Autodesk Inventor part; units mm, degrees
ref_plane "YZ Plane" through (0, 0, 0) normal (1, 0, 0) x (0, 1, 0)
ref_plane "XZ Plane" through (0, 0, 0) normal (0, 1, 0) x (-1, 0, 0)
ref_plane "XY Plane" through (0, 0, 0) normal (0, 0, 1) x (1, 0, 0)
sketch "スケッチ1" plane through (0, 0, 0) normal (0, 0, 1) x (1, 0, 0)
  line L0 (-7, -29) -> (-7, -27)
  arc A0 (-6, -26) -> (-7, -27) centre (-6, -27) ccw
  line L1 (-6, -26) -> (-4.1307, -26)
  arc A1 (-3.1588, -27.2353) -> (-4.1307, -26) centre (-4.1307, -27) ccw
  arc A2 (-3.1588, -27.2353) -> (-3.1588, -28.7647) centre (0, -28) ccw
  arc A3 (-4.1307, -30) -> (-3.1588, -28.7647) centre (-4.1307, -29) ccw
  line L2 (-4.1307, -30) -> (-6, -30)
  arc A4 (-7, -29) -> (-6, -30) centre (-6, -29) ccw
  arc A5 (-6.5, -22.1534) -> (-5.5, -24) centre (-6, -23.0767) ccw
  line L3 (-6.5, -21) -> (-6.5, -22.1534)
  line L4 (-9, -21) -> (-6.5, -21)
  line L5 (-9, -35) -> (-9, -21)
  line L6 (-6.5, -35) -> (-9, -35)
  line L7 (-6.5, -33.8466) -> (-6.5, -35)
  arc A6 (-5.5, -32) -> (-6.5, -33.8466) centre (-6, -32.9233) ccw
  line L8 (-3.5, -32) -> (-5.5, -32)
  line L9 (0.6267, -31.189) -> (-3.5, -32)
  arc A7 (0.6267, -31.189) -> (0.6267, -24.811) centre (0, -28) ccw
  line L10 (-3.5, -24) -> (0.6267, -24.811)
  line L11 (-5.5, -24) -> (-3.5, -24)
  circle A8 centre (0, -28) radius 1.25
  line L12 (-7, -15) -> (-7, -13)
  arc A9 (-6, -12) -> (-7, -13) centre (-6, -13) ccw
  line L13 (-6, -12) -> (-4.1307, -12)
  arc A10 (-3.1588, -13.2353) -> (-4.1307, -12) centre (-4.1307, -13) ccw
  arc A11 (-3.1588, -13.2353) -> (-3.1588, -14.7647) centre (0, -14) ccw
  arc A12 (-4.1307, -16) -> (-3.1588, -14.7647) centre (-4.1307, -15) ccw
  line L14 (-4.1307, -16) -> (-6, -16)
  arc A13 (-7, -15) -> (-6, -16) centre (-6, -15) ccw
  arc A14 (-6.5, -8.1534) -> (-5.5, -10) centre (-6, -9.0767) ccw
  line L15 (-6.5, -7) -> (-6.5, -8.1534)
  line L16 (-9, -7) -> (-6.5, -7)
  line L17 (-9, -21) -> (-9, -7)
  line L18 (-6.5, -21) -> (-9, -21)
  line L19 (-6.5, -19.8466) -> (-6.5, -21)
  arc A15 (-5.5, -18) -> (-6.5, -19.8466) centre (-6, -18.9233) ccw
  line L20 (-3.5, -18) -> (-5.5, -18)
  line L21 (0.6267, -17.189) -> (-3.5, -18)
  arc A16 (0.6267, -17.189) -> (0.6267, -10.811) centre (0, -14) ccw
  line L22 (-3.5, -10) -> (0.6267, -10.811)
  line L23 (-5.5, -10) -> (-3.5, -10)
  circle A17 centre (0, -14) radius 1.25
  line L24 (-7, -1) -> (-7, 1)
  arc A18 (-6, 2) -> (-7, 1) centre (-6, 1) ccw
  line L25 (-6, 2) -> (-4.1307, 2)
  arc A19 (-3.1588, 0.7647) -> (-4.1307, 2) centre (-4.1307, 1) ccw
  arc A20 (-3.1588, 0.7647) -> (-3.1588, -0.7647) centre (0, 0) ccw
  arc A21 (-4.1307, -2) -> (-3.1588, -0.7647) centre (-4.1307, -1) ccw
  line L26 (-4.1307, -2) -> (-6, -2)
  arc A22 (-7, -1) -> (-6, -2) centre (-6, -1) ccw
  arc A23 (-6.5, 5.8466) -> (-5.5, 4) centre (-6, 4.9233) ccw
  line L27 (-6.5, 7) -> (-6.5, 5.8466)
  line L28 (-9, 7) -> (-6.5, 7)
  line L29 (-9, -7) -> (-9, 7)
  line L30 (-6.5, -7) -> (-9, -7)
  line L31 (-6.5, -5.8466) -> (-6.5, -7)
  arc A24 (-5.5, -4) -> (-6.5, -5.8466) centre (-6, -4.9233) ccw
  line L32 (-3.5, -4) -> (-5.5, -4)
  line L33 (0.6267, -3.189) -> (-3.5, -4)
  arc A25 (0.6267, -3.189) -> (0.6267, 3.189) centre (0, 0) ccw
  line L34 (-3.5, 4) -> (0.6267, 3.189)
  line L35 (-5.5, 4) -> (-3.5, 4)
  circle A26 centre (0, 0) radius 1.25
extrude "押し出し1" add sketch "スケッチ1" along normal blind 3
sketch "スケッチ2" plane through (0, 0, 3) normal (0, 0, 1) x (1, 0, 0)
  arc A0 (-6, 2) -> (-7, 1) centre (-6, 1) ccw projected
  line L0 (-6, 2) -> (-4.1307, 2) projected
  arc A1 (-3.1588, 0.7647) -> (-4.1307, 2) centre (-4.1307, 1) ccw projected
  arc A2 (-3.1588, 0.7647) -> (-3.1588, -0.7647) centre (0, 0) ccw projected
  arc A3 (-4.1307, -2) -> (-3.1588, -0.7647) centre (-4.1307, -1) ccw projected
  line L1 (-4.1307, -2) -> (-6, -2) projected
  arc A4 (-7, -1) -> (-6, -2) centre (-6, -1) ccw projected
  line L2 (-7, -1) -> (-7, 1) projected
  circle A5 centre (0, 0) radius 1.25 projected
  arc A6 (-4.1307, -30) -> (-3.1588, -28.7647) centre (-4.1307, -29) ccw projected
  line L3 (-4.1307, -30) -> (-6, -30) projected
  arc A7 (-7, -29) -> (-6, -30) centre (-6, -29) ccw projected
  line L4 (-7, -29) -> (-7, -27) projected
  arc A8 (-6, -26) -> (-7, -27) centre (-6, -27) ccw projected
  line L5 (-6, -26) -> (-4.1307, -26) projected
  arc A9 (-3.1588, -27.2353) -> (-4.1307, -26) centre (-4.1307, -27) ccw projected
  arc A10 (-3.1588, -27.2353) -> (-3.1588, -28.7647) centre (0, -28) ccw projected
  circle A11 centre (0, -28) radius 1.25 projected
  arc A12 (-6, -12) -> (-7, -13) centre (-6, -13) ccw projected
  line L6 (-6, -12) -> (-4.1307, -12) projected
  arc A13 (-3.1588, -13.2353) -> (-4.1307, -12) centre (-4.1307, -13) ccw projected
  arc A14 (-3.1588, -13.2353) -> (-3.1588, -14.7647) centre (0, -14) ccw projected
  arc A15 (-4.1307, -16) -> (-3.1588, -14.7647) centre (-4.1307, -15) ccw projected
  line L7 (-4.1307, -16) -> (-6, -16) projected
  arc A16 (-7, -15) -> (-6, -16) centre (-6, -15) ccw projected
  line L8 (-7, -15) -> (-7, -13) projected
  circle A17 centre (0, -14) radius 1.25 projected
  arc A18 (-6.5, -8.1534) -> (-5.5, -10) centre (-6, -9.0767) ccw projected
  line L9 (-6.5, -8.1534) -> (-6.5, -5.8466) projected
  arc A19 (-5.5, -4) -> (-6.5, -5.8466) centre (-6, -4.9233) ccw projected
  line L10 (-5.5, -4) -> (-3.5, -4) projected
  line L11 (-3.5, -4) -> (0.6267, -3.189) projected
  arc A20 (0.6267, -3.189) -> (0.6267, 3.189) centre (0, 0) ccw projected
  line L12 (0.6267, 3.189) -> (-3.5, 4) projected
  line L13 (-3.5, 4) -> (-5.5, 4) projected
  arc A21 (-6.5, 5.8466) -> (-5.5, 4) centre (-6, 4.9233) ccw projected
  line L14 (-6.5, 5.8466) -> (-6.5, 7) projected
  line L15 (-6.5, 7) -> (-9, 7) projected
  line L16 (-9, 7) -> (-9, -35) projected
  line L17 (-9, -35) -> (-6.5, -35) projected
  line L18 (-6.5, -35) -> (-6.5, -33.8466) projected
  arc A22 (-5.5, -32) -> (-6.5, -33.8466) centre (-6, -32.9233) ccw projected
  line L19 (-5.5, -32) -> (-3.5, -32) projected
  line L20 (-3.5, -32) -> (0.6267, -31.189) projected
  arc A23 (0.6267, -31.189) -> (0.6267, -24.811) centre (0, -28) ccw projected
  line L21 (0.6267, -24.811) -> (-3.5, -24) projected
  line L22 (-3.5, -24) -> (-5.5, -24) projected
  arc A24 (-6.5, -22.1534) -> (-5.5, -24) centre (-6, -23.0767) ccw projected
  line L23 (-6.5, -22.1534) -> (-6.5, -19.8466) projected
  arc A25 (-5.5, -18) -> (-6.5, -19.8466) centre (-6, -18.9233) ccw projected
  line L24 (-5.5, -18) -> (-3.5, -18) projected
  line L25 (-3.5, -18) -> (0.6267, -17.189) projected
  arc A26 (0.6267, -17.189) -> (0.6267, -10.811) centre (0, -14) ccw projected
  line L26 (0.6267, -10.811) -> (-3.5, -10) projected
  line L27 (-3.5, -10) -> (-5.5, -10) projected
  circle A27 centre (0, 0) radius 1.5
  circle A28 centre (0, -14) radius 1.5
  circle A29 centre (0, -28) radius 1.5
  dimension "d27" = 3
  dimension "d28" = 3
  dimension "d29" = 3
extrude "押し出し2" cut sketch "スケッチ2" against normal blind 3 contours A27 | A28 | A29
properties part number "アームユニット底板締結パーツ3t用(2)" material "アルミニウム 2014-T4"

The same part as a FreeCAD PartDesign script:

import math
import FreeCAD as App
import Part
import Sketcher
Q = App.Units.Quantity

doc = App.newDocument("Part")
body = doc.addObject("PartDesign::Body", "Body")

sketch1 = doc.addObject("Sketcher::SketchObject", "Sketch")
body.addObject(sketch1)
sketch1.AttachmentSupport = (doc.XY_Plane, [""])
sketch1.MapMode = "FlatFace"
sketch1.addGeometry([
    Part.ArcOfCircle(Part.Circle(App.Vector(-6, -23.1, 0), App.Vector(0, 0, 1), 1), math.radians(118), math.radians(298)),
    Part.LineSegment(App.Vector(-6.5, -22.2, 0), App.Vector(-6.5, -19.8, 0)),
    Part.ArcOfCircle(Part.Circle(App.Vector(-6, -18.9, 0), App.Vector(0, 0, 1), 1), math.radians(62), math.radians(242)),
    Part.LineSegment(App.Vector(-5.5, -18, 0), App.Vector(-3.5, -18, 0)),
    Part.LineSegment(App.Vector(-3.5, -18, 0), App.Vector(0.6, -17.2, 0)),
    Part.ArcOfCircle(Part.Circle(App.Vector(0, -14, 0), App.Vector(0, 0, 1), 3.2), math.radians(-79), math.radians(79)),
    Part.LineSegment(App.Vector(0.6, -10.8, 0), App.Vector(-3.5, -10, 0)),
    Part.LineSegment(App.Vector(-3.5, -10, 0), App.Vector(-5.5, -10, 0)),
    Part.ArcOfCircle(Part.Circle(App.Vector(-6, -9.1, 0), App.Vector(0, 0, 1), 1), math.radians(118), math.radians(298)),
    Part.LineSegment(App.Vector(-6.5, -8.2, 0), App.Vector(-6.5, -5.8, 0)),
    Part.ArcOfCircle(Part.Circle(App.Vector(-6, -4.9, 0), App.Vector(0, 0, 1), 1), math.radians(62), math.radians(242)),
    Part.LineSegment(App.Vector(-5.5, -4, 0), App.Vector(-3.5, -4, 0)),
    Part.LineSegment(App.Vector(-3.5, -4, 0), App.Vector(0.6, -3.2, 0)),
    Part.ArcOfCircle(Part.Circle(App.Vector(0, 0, 0), App.Vector(0, 0, 1), 3.2), math.radians(-79), math.radians(79)),
    Part.LineSegment(App.Vector(0.6, 3.2, 0), App.Vector(-3.5, 4, 0)),
    Part.LineSegment(App.Vector(-3.5, 4, 0), App.Vector(-5.5, 4, 0)),
    Part.ArcOfCircle(Part.Circle(App.Vector(-6, 4.9, 0), App.Vector(0, 0, 1), 1), math.radians(118), math.radians(298)),
    Part.LineSegment(App.Vector(-6.5, 5.8, 0), App.Vector(-6.5, 7, 0)),
    Part.LineSegment(App.Vector(-6.5, 7, 0), App.Vector(-9, 7, 0)),
    Part.LineSegment(App.Vector(-9, 7, 0), App.Vector(-9, -35, 0)),
    Part.LineSegment(App.Vector(-9, -35, 0), App.Vector(-6.5, -35, 0)),
    Part.LineSegment(App.Vector(-6.5, -35, 0), App.Vector(-6.5, -33.8, 0)),
    Part.ArcOfCircle(Part.Circle(App.Vector(-6, -32.9, 0), App.Vector(0, 0, 1), 1), math.radians(62), math.radians(242)),
    Part.LineSegment(App.Vector(-5.5, -32, 0), App.Vector(-3.5, -32, 0)),
    Part.LineSegment(App.Vector(-3.5, -32, 0), App.Vector(0.6, -31.2, 0)),
    Part.ArcOfCircle(Part.Circle(App.Vector(0, -28, 0), App.Vector(0, 0, 1), 3.2), math.radians(-79), math.radians(79)),
    Part.LineSegment(App.Vector(0.6, -24.8, 0), App.Vector(-3.5, -24, 0)),
    Part.LineSegment(App.Vector(-3.5, -24, 0), App.Vector(-5.5, -24, 0)),
    Part.ArcOfCircle(Part.Circle(App.Vector(-6, -29, 0), App.Vector(0, 0, 1), 1), math.radians(180), math.radians(270)),
    Part.LineSegment(App.Vector(-7, -29, 0), App.Vector(-7, -27, 0)),
    Part.ArcOfCircle(Part.Circle(App.Vector(-6, -27, 0), App.Vector(0, 0, 1), 1), math.radians(90), math.radians(180)),
    Part.LineSegment(App.Vector(-6, -26, 0), App.Vector(-4.1, -26, 0)),
    Part.ArcOfCircle(Part.Circle(App.Vector(-4.1, -27, 0), App.Vector(0, 0, 1), 1), math.radians(-14), math.radians(90)),
    Part.ArcOfCircle(Part.Circle(App.Vector(0, -28, 0), App.Vector(0, 0, 1), 3.3), math.radians(166), math.radians(194)),
    Part.ArcOfCircle(Part.Circle(App.Vector(-4.1, -29, 0), App.Vector(0, 0, 1), 1), math.radians(-90), math.radians(14)),
    Part.LineSegment(App.Vector(-4.1, -30, 0), App.Vector(-6, -30, 0)),
    Part.Circle(App.Vector(0, -28, 0), App.Vector(0, 0, 1), 1.2),
    Part.Circle(App.Vector(0, -14, 0), App.Vector(0, 0, 1), 1.2),
    Part.ArcOfCircle(Part.Circle(App.Vector(-6, -15, 0), App.Vector(0, 0, 1), 1), math.radians(180), math.radians(270)),
    Part.LineSegment(App.Vector(-7, -15, 0), App.Vector(-7, -13, 0)),
    Part.ArcOfCircle(Part.Circle(App.Vector(-6, -13, 0), App.Vector(0, 0, 1), 1), math.radians(90), math.radians(180)),
    Part.LineSegment(App.Vector(-6, -12, 0), App.Vector(-4.1, -12, 0)),
    Part.ArcOfCircle(Part.Circle(App.Vector(-4.1, -13, 0), App.Vector(0, 0, 1), 1), math.radians(-14), math.radians(90)),
    Part.ArcOfCircle(Part.Circle(App.Vector(0, -14, 0), App.Vector(0, 0, 1), 3.3), math.radians(166), math.radians(194)),
    Part.ArcOfCircle(Part.Circle(App.Vector(-4.1, -15, 0), App.Vector(0, 0, 1), 1), math.radians(-90), math.radians(14)),
    Part.LineSegment(App.Vector(-4.1, -16, 0), App.Vector(-6, -16, 0)),
    Part.Circle(App.Vector(0, 0, 0), App.Vector(0, 0, 1), 1.2),
    Part.ArcOfCircle(Part.Circle(App.Vector(-6, -1, 0), App.Vector(0, 0, 1), 1), math.radians(180), math.radians(270)),
    Part.LineSegment(App.Vector(-7, -1, 0), App.Vector(-7, 1, 0)),
    Part.ArcOfCircle(Part.Circle(App.Vector(-6, 1, 0), App.Vector(0, 0, 1), 1), math.radians(90), math.radians(180)),
    Part.LineSegment(App.Vector(-6, 2, 0), App.Vector(-4.1, 2, 0)),
    Part.ArcOfCircle(Part.Circle(App.Vector(-4.1, 1, 0), App.Vector(0, 0, 1), 1), math.radians(-14), math.radians(90)),
    Part.ArcOfCircle(Part.Circle(App.Vector(0, 0, 0), App.Vector(0, 0, 1), 3.3), math.radians(166), math.radians(194)),
    Part.ArcOfCircle(Part.Circle(App.Vector(-4.1, -1, 0), App.Vector(0, 0, 1), 1), math.radians(-90), math.radians(14)),
    Part.LineSegment(App.Vector(-4.1, -2, 0), App.Vector(-6, -2, 0)),
], False)
sketch1.addConstraint([
    Sketcher.Constraint("Coincident", 0, 1, 1, 1),
    Sketcher.Constraint("Coincident", 1, 2, 2, 2),
    Sketcher.Constraint("Coincident", 2, 1, 3, 1),
    Sketcher.Constraint("Coincident", 3, 2, 4, 1),
    Sketcher.Constraint("Tangent", 4, 2, 5, 1),
    Sketcher.Constraint("Tangent", 5, 2, 6, 1),
    Sketcher.Constraint("Coincident", 6, 2, 7, 1),
    Sketcher.Constraint("Coincident", 7, 2, 8, 2),
    Sketcher.Constraint("Coincident", 8, 1, 9, 1),
    Sketcher.Constraint("Coincident", 9, 2, 10, 2),
    Sketcher.Constraint("Coincident", 10, 1, 11, 1),
    Sketcher.Constraint("Coincident", 11, 2, 12, 1),
    Sketcher.Constraint("Tangent", 12, 2, 13, 1),
    Sketcher.Constraint("Tangent", 13, 2, 14, 1),
    Sketcher.Constraint("Coincident", 14, 2, 15, 1),
    Sketcher.Constraint("Coincident", 15, 2, 16, 2),
    Sketcher.Constraint("Coincident", 16, 1, 17, 1),
    Sketcher.Constraint("Coincident", 17, 2, 18, 1),
    Sketcher.Constraint("Coincident", 18, 2, 19, 1),
    Sketcher.Constraint("Coincident", 19, 2, 20, 1),
    Sketcher.Constraint("Coincident", 20, 2, 21, 1),
    Sketcher.Constraint("Coincident", 21, 2, 22, 2),
    Sketcher.Constraint("Coincident", 22, 1, 23, 1),
    Sketcher.Constraint("Coincident", 23, 2, 24, 1),
    Sketcher.Constraint("Tangent", 24, 2, 25, 1),
    Sketcher.Constraint("Tangent", 25, 2, 26, 1),
    Sketcher.Constraint("Coincident", 26, 2, 27, 1),
    Sketcher.Constraint("Coincident", 27, 2, 0, 2),
    Sketcher.Constraint("Tangent", 28, 1, 29, 1),
    Sketcher.Constraint("Tangent", 29, 2, 30, 2),
    Sketcher.Constraint("Tangent", 30, 1, 31, 1),
    Sketcher.Constraint("Tangent", 31, 2, 32, 2),
    Sketcher.Constraint("Tangent", 32, 1, 33, 1),
    Sketcher.Constraint("Tangent", 33, 2, 34, 2),
    Sketcher.Constraint("Tangent", 34, 1, 35, 1),
    Sketcher.Constraint("Tangent", 35, 2, 28, 2),
    Sketcher.Constraint("Tangent", 38, 1, 39, 1),
    Sketcher.Constraint("Tangent", 39, 2, 40, 2),
    Sketcher.Constraint("Tangent", 40, 1, 41, 1),
    Sketcher.Constraint("Tangent", 41, 2, 42, 2),
    Sketcher.Constraint("Tangent", 42, 1, 43, 1),
    Sketcher.Constraint("Tangent", 43, 2, 44, 2),
    Sketcher.Constraint("Tangent", 44, 1, 45, 1),
    Sketcher.Constraint("Tangent", 45, 2, 38, 2),
    Sketcher.Constraint("Tangent", 47, 1, 48, 1),
    Sketcher.Constraint("Tangent", 48, 2, 49, 2),
    Sketcher.Constraint("Tangent", 49, 1, 50, 1),
    Sketcher.Constraint("Tangent", 50, 2, 51, 2),
    Sketcher.Constraint("Tangent", 51, 1, 52, 1),
    Sketcher.Constraint("Tangent", 52, 2, 53, 2),
    Sketcher.Constraint("Tangent", 53, 1, 54, 1),
    Sketcher.Constraint("Tangent", 54, 2, 47, 2),
    Sketcher.Constraint("Vertical", 1),
    Sketcher.Constraint("Horizontal", 3),
    Sketcher.Constraint("Horizontal", 7),
    Sketcher.Constraint("Vertical", 9),
    Sketcher.Constraint("Horizontal", 11),
    Sketcher.Constraint("Horizontal", 15),
    Sketcher.Constraint("Vertical", 17),
    Sketcher.Constraint("Horizontal", 18),
    Sketcher.Constraint("Vertical", 19),
    Sketcher.Constraint("Horizontal", 20),
    Sketcher.Constraint("Vertical", 21),
    Sketcher.Constraint("Horizontal", 23),
    Sketcher.Constraint("Horizontal", 27),
    Sketcher.Constraint("Vertical", 29),
    Sketcher.Constraint("Horizontal", 31),
    Sketcher.Constraint("Horizontal", 35),
    Sketcher.Constraint("Vertical", 39),
    Sketcher.Constraint("Horizontal", 41),
    Sketcher.Constraint("Horizontal", 45),
    Sketcher.Constraint("Vertical", 48),
    Sketcher.Constraint("Horizontal", 50),
    Sketcher.Constraint("Horizontal", 54),
    Sketcher.Constraint("Coincident", 13, 3, -1, 1),
    Sketcher.Constraint("Coincident", 46, 3, -1, 1),
    Sketcher.Constraint("Coincident", 52, 3, -1, 1),
    Sketcher.Constraint("Coincident", 33, 3, 25, 3),
    Sketcher.Constraint("Coincident", 36, 3, 25, 3),
    Sketcher.Constraint("Coincident", 37, 3, 5, 3),
    Sketcher.Constraint("Coincident", 43, 3, 5, 3),
    Sketcher.Constraint("Equal", 0, 2),
    Sketcher.Constraint("Equal", 2, 8),
    Sketcher.Constraint("Equal", 8, 10),
    Sketcher.Constraint("Equal", 5, 13),
    Sketcher.Constraint("Equal", 10, 16),
    Sketcher.Constraint("Equal", 16, 22),
    Sketcher.Constraint("Equal", 13, 25),
    Sketcher.Constraint("Equal", 28, 30),
    Sketcher.Constraint("Equal", 30, 32),
    Sketcher.Constraint("Equal", 25, 33),
    Sketcher.Constraint("Equal", 32, 34),
    Sketcher.Constraint("Equal", 36, 37),
    Sketcher.Constraint("Equal", 34, 38),
    Sketcher.Constraint("Equal", 38, 40),
    Sketcher.Constraint("Equal", 40, 42),
    Sketcher.Constraint("Equal", 33, 43),
    Sketcher.Constraint("Equal", 42, 44),
    Sketcher.Constraint("Equal", 37, 46),
    Sketcher.Constraint("Equal", 44, 47),
    Sketcher.Constraint("Equal", 47, 49),
    Sketcher.Constraint("Equal", 49, 51),
    Sketcher.Constraint("Equal", 43, 52),
    Sketcher.Constraint("Equal", 51, 53),
    Sketcher.Constraint("Symmetric", 10, 3, 16, 3, -1),
    Sketcher.Constraint("Symmetric", 11, 2, 14, 2, -1),
    Sketcher.Constraint("PointOnObject", 5, 3, -2),
    Sketcher.Constraint("PointOnObject", 25, 3, -2),
    Sketcher.Constraint("Parallel", 4, 12),
    Sketcher.Constraint("Parallel", 6, 14),
    Sketcher.Constraint("Parallel", 12, 24),
    Sketcher.Constraint("Parallel", 14, 26),
    Sketcher.Constraint("Vertical", 0, 3, 2, 3),
    Sketcher.Constraint("Vertical", 2, 3, 8, 3),
    Sketcher.Constraint("Vertical", 8, 3, 10, 3),
    Sketcher.Constraint("Vertical", 16, 3, 22, 3),
    Sketcher.Constraint("Vertical", 22, 3, 28, 3),
    Sketcher.Constraint("Vertical", 32, 3, 34, 3),
    Sketcher.Constraint("Vertical", 30, 3, 38, 3),
    Sketcher.Constraint("Vertical", 34, 3, 42, 3),
    Sketcher.Constraint("Vertical", 42, 3, 44, 3),
    Sketcher.Constraint("Vertical", 40, 3, 47, 3),
    Sketcher.Constraint("Vertical", 44, 3, 51, 3),
    Sketcher.Constraint("Vertical", 51, 3, 53, 3),
    Sketcher.Constraint("Vertical", 3, 2, 6, 2),
    Sketcher.Constraint("Vertical", 2, 1, 7, 2),
    Sketcher.Constraint("Vertical", 1, 2, 8, 1),
    Sketcher.Constraint("Vertical", 7, 2, 10, 1),
    Sketcher.Constraint("Vertical", 6, 2, 11, 2),
    Sketcher.Constraint("Vertical", 9, 2, 16, 1),
    Sketcher.Constraint("Vertical", 17, 2, 20, 2),
    Sketcher.Constraint("Vertical", 15, 2, 22, 1),
    Sketcher.Constraint("Vertical", 14, 2, 23, 2),
    Sketcher.Constraint("Vertical", 23, 2, 26, 2),
    Sketcher.Constraint("Vertical", 22, 1, 27, 2),
    Sketcher.Constraint("Equal", 1, 9),
    Sketcher.Constraint("Equal", 17, 21),
    Sketcher.Constraint("Equal", 27, 29),
    Sketcher.Constraint("Radius", 28, Q("1 mm")),
    Sketcher.Constraint("Diameter", 36, Q("2.5 mm")),
    Sketcher.Constraint("DistanceX", 3, 1, 3, 2, Q("2 mm")),
    Sketcher.Constraint("DistanceY", 19, 2, 19, 1, Q("42 mm")),
    Sketcher.Constraint("Radius", 0, Q("1.05 mm")),
    Sketcher.Constraint("Radius", 5, Q("3.25 mm")),
    Sketcher.Constraint("DistanceX", 18, 2, 18, 1, Q("2.5 mm")),
    Sketcher.Constraint("DistanceX", 0, 3, -1, 1, Q("6 mm")),
    Sketcher.Constraint("DistanceY", 5, 3, -1, 1, Q("14 mm")),
    Sketcher.Constraint("DistanceY", 2, 1, -1, 1, Q("18 mm")),
    Sketcher.Constraint("DistanceX", 18, 2, -1, 1, Q("9 mm")),
    Sketcher.Constraint("DistanceX", 2, 1, -1, 1, Q("5.5 mm")),
])
pad1 = doc.addObject("PartDesign::Pad", "Pad")
body.addObject(pad1)
pad1.Profile = sketch1
pad1.Length = 3

sketch2 = doc.addObject("Sketcher::SketchObject", "Sketch001")
body.addObject(sketch2)
sketch2.AttachmentSupport = (doc.XY_Plane, [""])
sketch2.MapMode = "FlatFace"
sketch2.AttachmentOffset = App.Placement(App.Vector(0, 0, 3), App.Rotation())
sketch2.addGeometry([
    Part.Circle(App.Vector(0, 0, 0), App.Vector(0, 0, 1), 1.5),
    Part.Circle(App.Vector(0, 0, 0), App.Vector(0, 0, 1), 1.2),
    Part.Circle(App.Vector(0, -14, 0), App.Vector(0, 0, 1), 1.5),
    Part.Circle(App.Vector(0, -14, 0), App.Vector(0, 0, 1), 1.2),
    Part.Circle(App.Vector(0, -28, 0), App.Vector(0, 0, 1), 1.5),
    Part.Circle(App.Vector(0, -28, 0), App.Vector(0, 0, 1), 1.2),
], False)
sketch2.addConstraint([
    Sketcher.Constraint("Coincident", 0, 3, -1, 1),
    Sketcher.Constraint("Coincident", 1, 3, -1, 1),
    Sketcher.Constraint("Coincident", 3, 3, 2, 3),
    Sketcher.Constraint("Coincident", 5, 3, 4, 3),
    Sketcher.Constraint("Equal", 0, 2),
    Sketcher.Constraint("Equal", 1, 3),
    Sketcher.Constraint("Equal", 2, 4),
    Sketcher.Constraint("Equal", 3, 5),
    Sketcher.Constraint("PointOnObject", 2, 3, -2),
    Sketcher.Constraint("PointOnObject", 4, 3, -2),
    Sketcher.Constraint("Diameter", 0, Q("3 mm")),
    Sketcher.Constraint("Diameter", 1, Q("2.5 mm")),
    Sketcher.Constraint("DistanceY", 2, 3, -1, 1, Q("14 mm")),
    Sketcher.Constraint("DistanceY", 4, 3, -1, 1, Q("28 mm")),
])
pocket1 = doc.addObject("PartDesign::Pocket", "Pocket")
body.addObject(pocket1)
pocket1.Profile = sketch2
pocket1.Length = 3

doc.recompute()
